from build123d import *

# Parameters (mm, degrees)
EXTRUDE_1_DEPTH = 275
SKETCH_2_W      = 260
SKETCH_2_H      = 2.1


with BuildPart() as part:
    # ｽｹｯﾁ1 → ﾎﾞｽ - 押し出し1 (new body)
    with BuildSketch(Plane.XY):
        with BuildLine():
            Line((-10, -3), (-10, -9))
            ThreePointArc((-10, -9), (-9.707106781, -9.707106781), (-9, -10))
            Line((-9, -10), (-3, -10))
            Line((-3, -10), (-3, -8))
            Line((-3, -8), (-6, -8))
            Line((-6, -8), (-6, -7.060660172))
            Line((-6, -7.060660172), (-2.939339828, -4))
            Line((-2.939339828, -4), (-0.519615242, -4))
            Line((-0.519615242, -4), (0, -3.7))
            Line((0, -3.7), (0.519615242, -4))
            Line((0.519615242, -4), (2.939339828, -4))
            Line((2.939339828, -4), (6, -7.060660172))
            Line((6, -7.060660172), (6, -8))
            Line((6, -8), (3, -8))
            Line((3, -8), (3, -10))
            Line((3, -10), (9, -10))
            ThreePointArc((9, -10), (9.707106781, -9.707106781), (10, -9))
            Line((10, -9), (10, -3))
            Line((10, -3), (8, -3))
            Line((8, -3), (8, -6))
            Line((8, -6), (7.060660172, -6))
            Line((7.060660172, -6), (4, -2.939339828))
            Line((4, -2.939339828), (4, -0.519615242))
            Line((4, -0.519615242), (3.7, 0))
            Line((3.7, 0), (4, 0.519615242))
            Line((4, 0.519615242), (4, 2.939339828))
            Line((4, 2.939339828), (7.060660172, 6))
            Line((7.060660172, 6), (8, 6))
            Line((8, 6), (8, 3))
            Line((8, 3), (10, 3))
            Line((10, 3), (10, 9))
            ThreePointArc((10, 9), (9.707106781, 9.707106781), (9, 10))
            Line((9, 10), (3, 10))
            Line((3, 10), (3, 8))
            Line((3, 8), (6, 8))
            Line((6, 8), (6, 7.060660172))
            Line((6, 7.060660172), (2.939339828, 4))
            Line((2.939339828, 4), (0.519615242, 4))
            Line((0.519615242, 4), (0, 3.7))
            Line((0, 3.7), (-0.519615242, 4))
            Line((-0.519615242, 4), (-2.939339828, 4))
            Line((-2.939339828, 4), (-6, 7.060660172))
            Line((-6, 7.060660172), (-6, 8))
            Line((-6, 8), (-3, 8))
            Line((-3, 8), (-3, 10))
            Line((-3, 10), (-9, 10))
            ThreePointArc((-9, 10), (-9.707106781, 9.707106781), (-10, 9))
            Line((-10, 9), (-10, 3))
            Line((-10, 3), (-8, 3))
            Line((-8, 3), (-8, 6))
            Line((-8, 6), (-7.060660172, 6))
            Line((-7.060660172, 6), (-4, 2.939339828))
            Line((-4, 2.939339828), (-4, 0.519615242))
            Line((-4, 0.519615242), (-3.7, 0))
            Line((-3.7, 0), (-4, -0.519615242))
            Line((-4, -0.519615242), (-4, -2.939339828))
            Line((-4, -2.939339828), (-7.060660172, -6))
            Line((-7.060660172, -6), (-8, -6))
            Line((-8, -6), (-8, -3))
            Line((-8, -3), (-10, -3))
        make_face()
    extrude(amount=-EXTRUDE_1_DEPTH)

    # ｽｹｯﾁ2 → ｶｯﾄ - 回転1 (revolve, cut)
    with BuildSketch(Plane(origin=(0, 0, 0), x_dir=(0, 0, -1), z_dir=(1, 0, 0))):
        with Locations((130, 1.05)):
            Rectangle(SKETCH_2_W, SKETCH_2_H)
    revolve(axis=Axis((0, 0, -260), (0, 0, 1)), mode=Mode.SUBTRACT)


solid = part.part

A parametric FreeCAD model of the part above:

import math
import FreeCAD as App
import Part
import Sketcher
from FreeCAD import Vector
Q = App.Units.Quantity


def add_polygon(sketch, points):
    """Adds a closed chain of lines whose ends are joined by coincident constraints."""
    first, n = sketch.GeometryCount, len(points)
    for a, b in zip(points, points[1:] + points[:1]):
        sketch.addGeometry(Part.LineSegment(App.Vector(*a, 0), App.Vector(*b, 0)), False)
    for i in range(n):
        sketch.addConstraint(Sketcher.Constraint("Coincident", first + i, 2, first + (i + 1) % n, 1))

doc = App.newDocument("Part")
body = doc.addObject("PartDesign::Body", "Body")

sketch1 = body.newObject("Sketcher::SketchObject", "Sketch")
sketch1.AttachmentSupport = (doc.getObject("XY_Plane"), [""])
sketch1.MapMode = "FlatFace"
sketch1.addGeometry(Part.LineSegment(Vector(-10, -3, 0), Vector(-10, -9, 0)), False)
sketch1.addGeometry(Part.ArcOfCircle(Part.Circle(Vector(-9, -9, 0), Vector(0, 0, 1), 1), math.radians(-180), math.radians(-90)), False)
sketch1.addGeometry(Part.LineSegment(Vector(-9, -10, 0), Vector(-3, -10, 0)), False)
sketch1.addGeometry(Part.LineSegment(Vector(-3, -10, 0), Vector(-3, -8, 0)), False)
sketch1.addGeometry(Part.LineSegment(Vector(-3, -8, 0), Vector(-6, -8, 0)), False)
sketch1.addGeometry(Part.LineSegment(Vector(-6, -8, 0), Vector(-6, -7.06066, 0)), False)
sketch1.addGeometry(Part.LineSegment(Vector(-6, -7.06066, 0), Vector(-2.93934, -4, 0)), False)
sketch1.addGeometry(Part.LineSegment(Vector(-2.93934, -4, 0), Vector(-0.519615, -4, 0)), False)
sketch1.addGeometry(Part.LineSegment(Vector(-0.519615, -4, 0), Vector(0, -3.7, 0)), False)
sketch1.addGeometry(Part.LineSegment(Vector(0, -3.7, 0), Vector(0.519615, -4, 0)), False)
sketch1.addGeometry(Part.LineSegment(Vector(0.519615, -4, 0), Vector(2.93934, -4, 0)), False)
sketch1.addGeometry(Part.LineSegment(Vector(2.93934, -4, 0), Vector(6, -7.06066, 0)), False)
sketch1.addGeometry(Part.LineSegment(Vector(6, -7.06066, 0), Vector(6, -8, 0)), False)
sketch1.addGeometry(Part.LineSegment(Vector(6, -8, 0), Vector(3, -8, 0)), False)
sketch1.addGeometry(Part.LineSegment(Vector(3, -8, 0), Vector(3, -10, 0)), False)
sketch1.addGeometry(Part.LineSegment(Vector(3, -10, 0), Vector(9, -10, 0)), False)
sketch1.addGeometry(Part.ArcOfCircle(Part.Circle(Vector(9, -9, 0), Vector(0, 0, 1), 1), math.radians(-90), math.radians(0)), False)
sketch1.addGeometry(Part.LineSegment(Vector(10, -9, 0), Vector(10, -3, 0)), False)
sketch1.addGeometry(Part.LineSegment(Vector(10, -3, 0), Vector(8, -3, 0)), False)
sketch1.addGeometry(Part.LineSegment(Vector(8, -3, 0), Vector(8, -6, 0)), False)
sketch1.addGeometry(Part.LineSegment(Vector(8, -6, 0), Vector(7.06066, -6, 0)), False)
sketch1.addGeometry(Part.LineSegment(Vector(7.06066, -6, 0), Vector(4, -2.93934, 0)), False)
sketch1.addGeometry(Part.LineSegment(Vector(4, -2.93934, 0), Vector(4, -0.519615, 0)), False)
sketch1.addGeometry(Part.LineSegment(Vector(4, -0.519615, 0), Vector(3.7, 0, 0)), False)
sketch1.addGeometry(Part.LineSegment(Vector(3.7, 0, 0), Vector(4, 0.519615, 0)), False)
sketch1.addGeometry(Part.LineSegment(Vector(4, 0.519615, 0), Vector(4, 2.93934, 0)), False)
sketch1.addGeometry(Part.LineSegment(Vector(4, 2.93934, 0), Vector(7.06066, 6, 0)), False)
sketch1.addGeometry(Part.LineSegment(Vector(7.06066, 6, 0), Vector(8, 6, 0)), False)
sketch1.addGeometry(Part.LineSegment(Vector(8, 6, 0), Vector(8, 3, 0)), False)
sketch1.addGeometry(Part.LineSegment(Vector(8, 3, 0), Vector(10, 3, 0)), False)
sketch1.addGeometry(Part.LineSegment(Vector(10, 3, 0), Vector(10, 9, 0)), False)
sketch1.addGeometry(Part.ArcOfCircle(Part.Circle(Vector(9, 9, 0), Vector(0, 0, 1), 1), math.radians(0), math.radians(90)), False)
sketch1.addGeometry(Part.LineSegment(Vector(9, 10, 0), Vector(3, 10, 0)), False)
sketch1.addGeometry(Part.LineSegment(Vector(3, 10, 0), Vector(3, 8, 0)), False)
sketch1.addGeometry(Part.LineSegment(Vector(3, 8, 0), Vector(6, 8, 0)), False)
sketch1.addGeometry(Part.LineSegment(Vector(6, 8, 0), Vector(6, 7.06066, 0)), False)
sketch1.addGeometry(Part.LineSegment(Vector(6, 7.06066, 0), Vector(2.93934, 4, 0)), False)
sketch1.addGeometry(Part.LineSegment(Vector(2.93934, 4, 0), Vector(0.519615, 4, 0)), False)
sketch1.addGeometry(Part.LineSegment(Vector(0.519615, 4, 0), Vector(0, 3.7, 0)), False)
sketch1.addGeometry(Part.LineSegment(Vector(0, 3.7, 0), Vector(-0.519615, 4, 0)), False)
sketch1.addGeometry(Part.LineSegment(Vector(-0.519615, 4, 0), Vector(-2.93934, 4, 0)), False)
sketch1.addGeometry(Part.LineSegment(Vector(-2.93934, 4, 0), Vector(-6, 7.06066, 0)), False)
sketch1.addGeometry(Part.LineSegment(Vector(-6, 7.06066, 0), Vector(-6, 8, 0)), False)
sketch1.addGeometry(Part.LineSegment(Vector(-6, 8, 0), Vector(-3, 8, 0)), False)
sketch1.addGeometry(Part.LineSegment(Vector(-3, 8, 0), Vector(-3, 10, 0)), False)
sketch1.addGeometry(Part.LineSegment(Vector(-3, 10, 0), Vector(-9, 10, 0)), False)
sketch1.addGeometry(Part.ArcOfCircle(Part.Circle(Vector(-9, 9, 0), Vector(0, 0, 1), 1), math.radians(90), math.radians(180)), False)
sketch1.addGeometry(Part.LineSegment(Vector(-10, 9, 0), Vector(-10, 3, 0)), False)
sketch1.addGeometry(Part.LineSegment(Vector(-10, 3, 0), Vector(-8, 3, 0)), False)
sketch1.addGeometry(Part.LineSegment(Vector(-8, 3, 0), Vector(-8, 6, 0)), False)
sketch1.addGeometry(Part.LineSegment(Vector(-8, 6, 0), Vector(-7.06066, 6, 0)), False)
sketch1.addGeometry(Part.LineSegment(Vector(-7.06066, 6, 0), Vector(-4, 2.93934, 0)), False)
sketch1.addGeometry(Part.LineSegment(Vector(-4, 2.93934, 0), Vector(-4, 0.519615, 0)), False)
sketch1.addGeometry(Part.LineSegment(Vector(-4, 0.519615, 0), Vector(-3.7, 0, 0)), False)
sketch1.addGeometry(Part.LineSegment(Vector(-3.7, 0, 0), Vector(-4, -0.519615, 0)), False)
sketch1.addGeometry(Part.LineSegment(Vector(-4, -0.519615, 0), Vector(-4, -2.93934, 0)), False)
sketch1.addGeometry(Part.LineSegment(Vector(-4, -2.93934, 0), Vector(-7.06066, -6, 0)), False)
sketch1.addGeometry(Part.LineSegment(Vector(-7.06066, -6, 0), Vector(-8, -6, 0)), False)
sketch1.addGeometry(Part.LineSegment(Vector(-8, -6, 0), Vector(-8, -3, 0)), False)
sketch1.addGeometry(Part.LineSegment(Vector(-8, -3, 0), Vector(-10, -3, 0)), False)
sketch1.addConstraint(Sketcher.Constraint("Tangent", 0, 2, 1, 1))
sketch1.addConstraint(Sketcher.Constraint("Tangent", 1, 2, 2, 1))
sketch1.addConstraint(Sketcher.Constraint("Coincident", 2, 2, 3, 1))
sketch1.addConstraint(Sketcher.Constraint("Coincident", 3, 2, 4, 1))
sketch1.addConstraint(Sketcher.Constraint("Coincident", 4, 2, 5, 1))
sketch1.addConstraint(Sketcher.Constraint("Coincident", 5, 2, 6, 1))
sketch1.addConstraint(Sketcher.Constraint("Coincident", 6, 2, 7, 1))
sketch1.addConstraint(Sketcher.Constraint("Coincident", 7, 2, 8, 1))
sketch1.addConstraint(Sketcher.Constraint("Coincident", 8, 2, 9, 1))
sketch1.addConstraint(Sketcher.Constraint("Coincident", 9, 2, 10, 1))
sketch1.addConstraint(Sketcher.Constraint("Coincident", 10, 2, 11, 1))
sketch1.addConstraint(Sketcher.Constraint("Coincident", 11, 2, 12, 1))
sketch1.addConstraint(Sketcher.Constraint("Coincident", 12, 2, 13, 1))
sketch1.addConstraint(Sketcher.Constraint("Coincident", 13, 2, 14, 1))
sketch1.addConstraint(Sketcher.Constraint("Coincident", 14, 2, 15, 1))
sketch1.addConstraint(Sketcher.Constraint("Tangent", 15, 2, 16, 1))
sketch1.addConstraint(Sketcher.Constraint("Tangent", 16, 2, 17, 1))
sketch1.addConstraint(Sketcher.Constraint("Coincident", 17, 2, 18, 1))
sketch1.addConstraint(Sketcher.Constraint("Coincident", 18, 2, 19, 1))
sketch1.addConstraint(Sketcher.Constraint("Coincident", 19, 2, 20, 1))
sketch1.addConstraint(Sketcher.Constraint("Coincident", 20, 2, 21, 1))
sketch1.addConstraint(Sketcher.Constraint("Coincident", 21, 2, 22, 1))
sketch1.addConstraint(Sketcher.Constraint("Coincident", 22, 2, 23, 1))
sketch1.addConstraint(Sketcher.Constraint("Coincident", 23, 2, 24, 1))
sketch1.addConstraint(Sketcher.Constraint("Coincident", 24, 2, 25, 1))
sketch1.addConstraint(Sketcher.Constraint("Coincident", 25, 2, 26, 1))
sketch1.addConstraint(Sketcher.Constraint("Coincident", 26, 2, 27, 1))
sketch1.addConstraint(Sketcher.Constraint("Coincident", 27, 2, 28, 1))
sketch1.addConstraint(Sketcher.Constraint("Coincident", 28, 2, 29, 1))
sketch1.addConstraint(Sketcher.Constraint("Coincident", 29, 2, 30, 1))
sketch1.addConstraint(Sketcher.Constraint("Tangent", 30, 2, 31, 1))
sketch1.addConstraint(Sketcher.Constraint("Tangent", 31, 2, 32, 1))
sketch1.addConstraint(Sketcher.Constraint("Coincident", 32, 2, 33, 1))
sketch1.addConstraint(Sketcher.Constraint("Coincident", 33, 2, 34, 1))
sketch1.addConstraint(Sketcher.Constraint("Coincident", 34, 2, 35, 1))
sketch1.addConstraint(Sketcher.Constraint("Coincident", 35, 2, 36, 1))
sketch1.addConstraint(Sketcher.Constraint("Coincident", 36, 2, 37, 1))
sketch1.addConstraint(Sketcher.Constraint("Coincident", 37, 2, 38, 1))
sketch1.addConstraint(Sketcher.Constraint("Coincident", 38, 2, 39, 1))
sketch1.addConstraint(Sketcher.Constraint("Coincident", 39, 2, 40, 1))
sketch1.addConstraint(Sketcher.Constraint("Coincident", 40, 2, 41, 1))
sketch1.addConstraint(Sketcher.Constraint("Coincident", 41, 2, 42, 1))
sketch1.addConstraint(Sketcher.Constraint("Coincident", 42, 2, 43, 1))
sketch1.addConstraint(Sketcher.Constraint("Coincident", 43, 2, 44, 1))
sketch1.addConstraint(Sketcher.Constraint("Coincident", 44, 2, 45, 1))
sketch1.addConstraint(Sketcher.Constraint("Tangent", 45, 2, 46, 1))
sketch1.addConstraint(Sketcher.Constraint("Tangent", 46, 2, 47, 1))
sketch1.addConstraint(Sketcher.Constraint("Coincident", 47, 2, 48, 1))
sketch1.addConstraint(Sketcher.Constraint("Coincident", 48, 2, 49, 1))
sketch1.addConstraint(Sketcher.Constraint("Coincident", 49, 2, 50, 1))
sketch1.addConstraint(Sketcher.Constraint("Coincident", 50, 2, 51, 1))
sketch1.addConstraint(Sketcher.Constraint("Coincident", 51, 2, 52, 1))
sketch1.addConstraint(Sketcher.Constraint("Coincident", 52, 2, 53, 1))
sketch1.addConstraint(Sketcher.Constraint("Coincident", 53, 2, 54, 1))
sketch1.addConstraint(Sketcher.Constraint("Coincident", 54, 2, 55, 1))
sketch1.addConstraint(Sketcher.Constraint("Coincident", 55, 2, 56, 1))
sketch1.addConstraint(Sketcher.Constraint("Coincident", 56, 2, 57, 1))
sketch1.addConstraint(Sketcher.Constraint("Coincident", 57, 2, 58, 1))
sketch1.addConstraint(Sketcher.Constraint("Coincident", 58, 2, 59, 1))
sketch1.addConstraint(Sketcher.Constraint("Coincident", 59, 2, 0, 1))
sketch1.addConstraint(Sketcher.Constraint("Vertical", 0))
sketch1.addConstraint(Sketcher.Constraint("Horizontal", 2))
sketch1.addConstraint(Sketcher.Constraint("Vertical", 3))
sketch1.addConstraint(Sketcher.Constraint("Horizontal", 4))
sketch1.addConstraint(Sketcher.Constraint("Vertical", 5))
sketch1.addConstraint(Sketcher.Constraint("Horizontal", 7))
sketch1.addConstraint(Sketcher.Constraint("Horizontal", 10))
sketch1.addConstraint(Sketcher.Constraint("Vertical", 12))
sketch1.addConstraint(Sketcher.Constraint("Horizontal", 13))
sketch1.addConstraint(Sketcher.Constraint("Vertical", 14))
sketch1.addConstraint(Sketcher.Constraint("Horizontal", 15))
sketch1.addConstraint(Sketcher.Constraint("Vertical", 17))
sketch1.addConstraint(Sketcher.Constraint("Horizontal", 18))
sketch1.addConstraint(Sketcher.Constraint("Vertical", 19))
sketch1.addConstraint(Sketcher.Constraint("Horizontal", 20))
sketch1.addConstraint(Sketcher.Constraint("Vertical", 22))
sketch1.addConstraint(Sketcher.Constraint("Vertical", 25))
sketch1.addConstraint(Sketcher.Constraint("Horizontal", 27))
sketch1.addConstraint(Sketcher.Constraint("Vertical", 28))
sketch1.addConstraint(Sketcher.Constraint("Horizontal", 29))
sketch1.addConstraint(Sketcher.Constraint("Vertical", 30))
sketch1.addConstraint(Sketcher.Constraint("Horizontal", 32))
sketch1.addConstraint(Sketcher.Constraint("Vertical", 33))
sketch1.addConstraint(Sketcher.Constraint("Horizontal", 34))
sketch1.addConstraint(Sketcher.Constraint("Vertical", 35))
sketch1.addConstraint(Sketcher.Constraint("Horizontal", 37))
sketch1.addConstraint(Sketcher.Constraint("Horizontal", 40))
sketch1.addConstraint(Sketcher.Constraint("Vertical", 42))
sketch1.addConstraint(Sketcher.Constraint("Horizontal", 43))
sketch1.addConstraint(Sketcher.Constraint("Vertical", 44))
sketch1.addConstraint(Sketcher.Constraint("Horizontal", 45))
sketch1.addConstraint(Sketcher.Constraint("Vertical", 47))
sketch1.addConstraint(Sketcher.Constraint("Horizontal", 48))
sketch1.addConstraint(Sketcher.Constraint("Vertical", 49))
sketch1.addConstraint(Sketcher.Constraint("Horizontal", 50))
sketch1.addConstraint(Sketcher.Constraint("Vertical", 52))
sketch1.addConstraint(Sketcher.Constraint("Vertical", 55))
sketch1.addConstraint(Sketcher.Constraint("Horizontal", 57))
sketch1.addConstraint(Sketcher.Constraint("Vertical", 58))
sketch1.addConstraint(Sketcher.Constraint("Horizontal", 59))
sketch1.addConstraint(Sketcher.Constraint("Equal", 1, 16))
sketch1.addConstraint(Sketcher.Constraint("Equal", 16, 31))
sketch1.addConstraint(Sketcher.Constraint("Equal", 31, 46))
sketch1.addConstraint(Sketcher.Constraint("Symmetric", 1, 3, 31, 3, -1, 1))
sketch1.addConstraint(Sketcher.Constraint("Symmetric", 16, 3, 46, 3, -1, 1))
sketch1.addConstraint(Sketcher.Constraint("Symmetric", 3, 2, 33, 2, -1, 1))
sketch1.addConstraint(Sketcher.Constraint("Symmetric", 5, 2, 35, 2, -1, 1))
sketch1.addConstraint(Sketcher.Constraint("Symmetric", 6, 2, 36, 2, -1, 1))
sketch1.addConstraint(Sketcher.Constraint("Symmetric", 8, 2, 38, 2, -1, 1))
sketch1.addConstraint(Sketcher.Constraint("Symmetric", 9, 2, 39, 2, -1, 1))
sketch1.addConstraint(Sketcher.Constraint("Symmetric", 11, 2, 41, 2, -1, 1))
sketch1.addConstraint(Sketcher.Constraint("Symmetric", 13, 2, 43, 2, -1, 1))
sketch1.addConstraint(Sketcher.Constraint("Symmetric", 18, 2, 48, 2, -1, 1))
sketch1.addConstraint(Sketcher.Constraint("Symmetric", 20, 2, 50, 2, -1, 1))
sketch1.addConstraint(Sketcher.Constraint("Symmetric", 21, 2, 51, 2, -1, 1))
sketch1.addConstraint(Sketcher.Constraint("Symmetric", 23, 2, 53, 2, -1, 1))
sketch1.addConstraint(Sketcher.Constraint("Symmetric", 24, 2, 54, 2, -1, 1))
sketch1.addConstraint(Sketcher.Constraint("Symmetric", 26, 2, 56, 2, -1, 1))
sketch1.addConstraint(Sketcher.Constraint("Symmetric", 28, 2, 58, 2, -1, 1))
sketch1.addConstraint(Sketcher.Constraint("Symmetric", 1, 3, 16, 3, -2))
sketch1.addConstraint(Sketcher.Constraint("Symmetric", 7, 2, 9, 2, -2))
sketch1.addConstraint(Sketcher.Constraint("Symmetric", 5, 2, 11, 2, -2))
sketch1.addConstraint(Sketcher.Constraint("Symmetric", 3, 2, 13, 2, -2))
sketch1.addConstraint(Sketcher.Constraint("Symmetric", 28, 2, 48, 2, -2))
sketch1.addConstraint(Sketcher.Constraint("Symmetric", 26, 2, 50, 2, -2))
sketch1.addConstraint(Sketcher.Constraint("Symmetric", 25, 2, 51, 2, -2))
sketch1.addConstraint(Sketcher.Constraint("PointOnObject", 8, 2, -2))
sketch1.addConstraint(Sketcher.Constraint("PointOnObject", 23, 2, -1))
sketch1.addConstraint(Sketcher.Constraint("Perpendicular", 6, 11))
sketch1.addConstraint(Sketcher.Constraint("Parallel", 11, 21))
sketch1.addConstraint(Sketcher.Constraint("Perpendicular", 8, 23))
sketch1.addConstraint(Sketcher.Constraint("Perpendicular", 9, 24))
sketch1.addConstraint(Sketcher.Constraint("Perpendicular", 21, 26))
sketch1.addConstraint(Sketcher.Constraint("Perpendicular", 23, 38))
sketch1.addConstraint(Sketcher.Constraint("Perpendicular", 36, 41))
sketch1.addConstraint(Sketcher.Constraint("Perpendicular", 38, 53))
sketch1.addConstraint(Sketcher.Constraint("Perpendicular", 51, 56))
sketch1.addConstraint(Sketcher.Constraint("Equal", 45, 0))
sketch1.addConstraint(Sketcher.Constraint("Equal", 59, 3))
sketch1.addConstraint(Sketcher.Constraint("Equal", 57, 5))
sketch1.addConstraint(Sketcher.Constraint("Equal", 43, 19))
sketch1.addConstraint(Sketcher.Constraint("Equal", 40, 22))
sketch1.addConstraint(Sketcher.Constraint("Equal", 11, 21))
sketch1.addConstraint(Sketcher.Constraint("Equal", 9, 23))
sketch1.addConstraint(Sketcher.Constraint("Radius", 1, 1.0))
sketch1.addConstraint(Sketcher.Constraint("DistanceX", 2, 1, 2, 2, 6.0))
sketch1.addConstraint(Sketcher.Constraint("DistanceX", 4, 2, 4, 1, 3.0))
sketch1.addConstraint(Sketcher.Constraint("DistanceX", 18, 2, 18, 1, 2.0))
sketch1.addConstraint(Sketcher.Constraint("Angle", 8, Q("30 deg")))
sketch1.addConstraint(Sketcher.Constraint("DistanceX", 1, 3, -1, 1, 9.0))
sketch1.addConstraint(Sketcher.Constraint("DistanceY", 6, 2, -1, 1, 4.0))
sketch1.addConstraint(Sketcher.Constraint("Distance", 8, 0.6))
sketch1.addConstraint(Sketcher.Constraint("DistanceX", 20, 2, 20, 1, 0.93934))
pad1 = body.newObject("PartDesign::Pad", "Pad")
pad1.Profile = sketch1
pad1.Length = 275
pad1.Reversed = True

sketch2 = body.newObject("Sketcher::SketchObject", "Sketch001")
sketch2.AttachmentSupport = (doc.getObject("YZ_Plane"), [""])
sketch2.MapMode = "FlatFace"
add_polygon(sketch2, [(2.1, 0), (0, 0), (0, -260), (2.1, -260)])
sketch2.addConstraint(Sketcher.Constraint("Horizontal", 0))
sketch2.addConstraint(Sketcher.Constraint("Vertical", 1))
sketch2.addConstraint(Sketcher.Constraint("Horizontal", 2))
sketch2.addConstraint(Sketcher.Constraint("Vertical", 3))
sketch2.addConstraint(Sketcher.Constraint("Coincident", 0, 2, -1, 1))
sketch2.addConstraint(Sketcher.Constraint("DistanceY", 1, 2, 1, 1, 260.0))
sketch2.addConstraint(Sketcher.Constraint("DistanceX", 0, 2, 0, 1, 2.1))
groove = body.newObject("PartDesign::Groove", "Groove")
groove.Profile = sketch2
groove.ReferenceAxis = (sketch2, ["V_Axis"])
groove.Angle = 360

doc.recompute()
